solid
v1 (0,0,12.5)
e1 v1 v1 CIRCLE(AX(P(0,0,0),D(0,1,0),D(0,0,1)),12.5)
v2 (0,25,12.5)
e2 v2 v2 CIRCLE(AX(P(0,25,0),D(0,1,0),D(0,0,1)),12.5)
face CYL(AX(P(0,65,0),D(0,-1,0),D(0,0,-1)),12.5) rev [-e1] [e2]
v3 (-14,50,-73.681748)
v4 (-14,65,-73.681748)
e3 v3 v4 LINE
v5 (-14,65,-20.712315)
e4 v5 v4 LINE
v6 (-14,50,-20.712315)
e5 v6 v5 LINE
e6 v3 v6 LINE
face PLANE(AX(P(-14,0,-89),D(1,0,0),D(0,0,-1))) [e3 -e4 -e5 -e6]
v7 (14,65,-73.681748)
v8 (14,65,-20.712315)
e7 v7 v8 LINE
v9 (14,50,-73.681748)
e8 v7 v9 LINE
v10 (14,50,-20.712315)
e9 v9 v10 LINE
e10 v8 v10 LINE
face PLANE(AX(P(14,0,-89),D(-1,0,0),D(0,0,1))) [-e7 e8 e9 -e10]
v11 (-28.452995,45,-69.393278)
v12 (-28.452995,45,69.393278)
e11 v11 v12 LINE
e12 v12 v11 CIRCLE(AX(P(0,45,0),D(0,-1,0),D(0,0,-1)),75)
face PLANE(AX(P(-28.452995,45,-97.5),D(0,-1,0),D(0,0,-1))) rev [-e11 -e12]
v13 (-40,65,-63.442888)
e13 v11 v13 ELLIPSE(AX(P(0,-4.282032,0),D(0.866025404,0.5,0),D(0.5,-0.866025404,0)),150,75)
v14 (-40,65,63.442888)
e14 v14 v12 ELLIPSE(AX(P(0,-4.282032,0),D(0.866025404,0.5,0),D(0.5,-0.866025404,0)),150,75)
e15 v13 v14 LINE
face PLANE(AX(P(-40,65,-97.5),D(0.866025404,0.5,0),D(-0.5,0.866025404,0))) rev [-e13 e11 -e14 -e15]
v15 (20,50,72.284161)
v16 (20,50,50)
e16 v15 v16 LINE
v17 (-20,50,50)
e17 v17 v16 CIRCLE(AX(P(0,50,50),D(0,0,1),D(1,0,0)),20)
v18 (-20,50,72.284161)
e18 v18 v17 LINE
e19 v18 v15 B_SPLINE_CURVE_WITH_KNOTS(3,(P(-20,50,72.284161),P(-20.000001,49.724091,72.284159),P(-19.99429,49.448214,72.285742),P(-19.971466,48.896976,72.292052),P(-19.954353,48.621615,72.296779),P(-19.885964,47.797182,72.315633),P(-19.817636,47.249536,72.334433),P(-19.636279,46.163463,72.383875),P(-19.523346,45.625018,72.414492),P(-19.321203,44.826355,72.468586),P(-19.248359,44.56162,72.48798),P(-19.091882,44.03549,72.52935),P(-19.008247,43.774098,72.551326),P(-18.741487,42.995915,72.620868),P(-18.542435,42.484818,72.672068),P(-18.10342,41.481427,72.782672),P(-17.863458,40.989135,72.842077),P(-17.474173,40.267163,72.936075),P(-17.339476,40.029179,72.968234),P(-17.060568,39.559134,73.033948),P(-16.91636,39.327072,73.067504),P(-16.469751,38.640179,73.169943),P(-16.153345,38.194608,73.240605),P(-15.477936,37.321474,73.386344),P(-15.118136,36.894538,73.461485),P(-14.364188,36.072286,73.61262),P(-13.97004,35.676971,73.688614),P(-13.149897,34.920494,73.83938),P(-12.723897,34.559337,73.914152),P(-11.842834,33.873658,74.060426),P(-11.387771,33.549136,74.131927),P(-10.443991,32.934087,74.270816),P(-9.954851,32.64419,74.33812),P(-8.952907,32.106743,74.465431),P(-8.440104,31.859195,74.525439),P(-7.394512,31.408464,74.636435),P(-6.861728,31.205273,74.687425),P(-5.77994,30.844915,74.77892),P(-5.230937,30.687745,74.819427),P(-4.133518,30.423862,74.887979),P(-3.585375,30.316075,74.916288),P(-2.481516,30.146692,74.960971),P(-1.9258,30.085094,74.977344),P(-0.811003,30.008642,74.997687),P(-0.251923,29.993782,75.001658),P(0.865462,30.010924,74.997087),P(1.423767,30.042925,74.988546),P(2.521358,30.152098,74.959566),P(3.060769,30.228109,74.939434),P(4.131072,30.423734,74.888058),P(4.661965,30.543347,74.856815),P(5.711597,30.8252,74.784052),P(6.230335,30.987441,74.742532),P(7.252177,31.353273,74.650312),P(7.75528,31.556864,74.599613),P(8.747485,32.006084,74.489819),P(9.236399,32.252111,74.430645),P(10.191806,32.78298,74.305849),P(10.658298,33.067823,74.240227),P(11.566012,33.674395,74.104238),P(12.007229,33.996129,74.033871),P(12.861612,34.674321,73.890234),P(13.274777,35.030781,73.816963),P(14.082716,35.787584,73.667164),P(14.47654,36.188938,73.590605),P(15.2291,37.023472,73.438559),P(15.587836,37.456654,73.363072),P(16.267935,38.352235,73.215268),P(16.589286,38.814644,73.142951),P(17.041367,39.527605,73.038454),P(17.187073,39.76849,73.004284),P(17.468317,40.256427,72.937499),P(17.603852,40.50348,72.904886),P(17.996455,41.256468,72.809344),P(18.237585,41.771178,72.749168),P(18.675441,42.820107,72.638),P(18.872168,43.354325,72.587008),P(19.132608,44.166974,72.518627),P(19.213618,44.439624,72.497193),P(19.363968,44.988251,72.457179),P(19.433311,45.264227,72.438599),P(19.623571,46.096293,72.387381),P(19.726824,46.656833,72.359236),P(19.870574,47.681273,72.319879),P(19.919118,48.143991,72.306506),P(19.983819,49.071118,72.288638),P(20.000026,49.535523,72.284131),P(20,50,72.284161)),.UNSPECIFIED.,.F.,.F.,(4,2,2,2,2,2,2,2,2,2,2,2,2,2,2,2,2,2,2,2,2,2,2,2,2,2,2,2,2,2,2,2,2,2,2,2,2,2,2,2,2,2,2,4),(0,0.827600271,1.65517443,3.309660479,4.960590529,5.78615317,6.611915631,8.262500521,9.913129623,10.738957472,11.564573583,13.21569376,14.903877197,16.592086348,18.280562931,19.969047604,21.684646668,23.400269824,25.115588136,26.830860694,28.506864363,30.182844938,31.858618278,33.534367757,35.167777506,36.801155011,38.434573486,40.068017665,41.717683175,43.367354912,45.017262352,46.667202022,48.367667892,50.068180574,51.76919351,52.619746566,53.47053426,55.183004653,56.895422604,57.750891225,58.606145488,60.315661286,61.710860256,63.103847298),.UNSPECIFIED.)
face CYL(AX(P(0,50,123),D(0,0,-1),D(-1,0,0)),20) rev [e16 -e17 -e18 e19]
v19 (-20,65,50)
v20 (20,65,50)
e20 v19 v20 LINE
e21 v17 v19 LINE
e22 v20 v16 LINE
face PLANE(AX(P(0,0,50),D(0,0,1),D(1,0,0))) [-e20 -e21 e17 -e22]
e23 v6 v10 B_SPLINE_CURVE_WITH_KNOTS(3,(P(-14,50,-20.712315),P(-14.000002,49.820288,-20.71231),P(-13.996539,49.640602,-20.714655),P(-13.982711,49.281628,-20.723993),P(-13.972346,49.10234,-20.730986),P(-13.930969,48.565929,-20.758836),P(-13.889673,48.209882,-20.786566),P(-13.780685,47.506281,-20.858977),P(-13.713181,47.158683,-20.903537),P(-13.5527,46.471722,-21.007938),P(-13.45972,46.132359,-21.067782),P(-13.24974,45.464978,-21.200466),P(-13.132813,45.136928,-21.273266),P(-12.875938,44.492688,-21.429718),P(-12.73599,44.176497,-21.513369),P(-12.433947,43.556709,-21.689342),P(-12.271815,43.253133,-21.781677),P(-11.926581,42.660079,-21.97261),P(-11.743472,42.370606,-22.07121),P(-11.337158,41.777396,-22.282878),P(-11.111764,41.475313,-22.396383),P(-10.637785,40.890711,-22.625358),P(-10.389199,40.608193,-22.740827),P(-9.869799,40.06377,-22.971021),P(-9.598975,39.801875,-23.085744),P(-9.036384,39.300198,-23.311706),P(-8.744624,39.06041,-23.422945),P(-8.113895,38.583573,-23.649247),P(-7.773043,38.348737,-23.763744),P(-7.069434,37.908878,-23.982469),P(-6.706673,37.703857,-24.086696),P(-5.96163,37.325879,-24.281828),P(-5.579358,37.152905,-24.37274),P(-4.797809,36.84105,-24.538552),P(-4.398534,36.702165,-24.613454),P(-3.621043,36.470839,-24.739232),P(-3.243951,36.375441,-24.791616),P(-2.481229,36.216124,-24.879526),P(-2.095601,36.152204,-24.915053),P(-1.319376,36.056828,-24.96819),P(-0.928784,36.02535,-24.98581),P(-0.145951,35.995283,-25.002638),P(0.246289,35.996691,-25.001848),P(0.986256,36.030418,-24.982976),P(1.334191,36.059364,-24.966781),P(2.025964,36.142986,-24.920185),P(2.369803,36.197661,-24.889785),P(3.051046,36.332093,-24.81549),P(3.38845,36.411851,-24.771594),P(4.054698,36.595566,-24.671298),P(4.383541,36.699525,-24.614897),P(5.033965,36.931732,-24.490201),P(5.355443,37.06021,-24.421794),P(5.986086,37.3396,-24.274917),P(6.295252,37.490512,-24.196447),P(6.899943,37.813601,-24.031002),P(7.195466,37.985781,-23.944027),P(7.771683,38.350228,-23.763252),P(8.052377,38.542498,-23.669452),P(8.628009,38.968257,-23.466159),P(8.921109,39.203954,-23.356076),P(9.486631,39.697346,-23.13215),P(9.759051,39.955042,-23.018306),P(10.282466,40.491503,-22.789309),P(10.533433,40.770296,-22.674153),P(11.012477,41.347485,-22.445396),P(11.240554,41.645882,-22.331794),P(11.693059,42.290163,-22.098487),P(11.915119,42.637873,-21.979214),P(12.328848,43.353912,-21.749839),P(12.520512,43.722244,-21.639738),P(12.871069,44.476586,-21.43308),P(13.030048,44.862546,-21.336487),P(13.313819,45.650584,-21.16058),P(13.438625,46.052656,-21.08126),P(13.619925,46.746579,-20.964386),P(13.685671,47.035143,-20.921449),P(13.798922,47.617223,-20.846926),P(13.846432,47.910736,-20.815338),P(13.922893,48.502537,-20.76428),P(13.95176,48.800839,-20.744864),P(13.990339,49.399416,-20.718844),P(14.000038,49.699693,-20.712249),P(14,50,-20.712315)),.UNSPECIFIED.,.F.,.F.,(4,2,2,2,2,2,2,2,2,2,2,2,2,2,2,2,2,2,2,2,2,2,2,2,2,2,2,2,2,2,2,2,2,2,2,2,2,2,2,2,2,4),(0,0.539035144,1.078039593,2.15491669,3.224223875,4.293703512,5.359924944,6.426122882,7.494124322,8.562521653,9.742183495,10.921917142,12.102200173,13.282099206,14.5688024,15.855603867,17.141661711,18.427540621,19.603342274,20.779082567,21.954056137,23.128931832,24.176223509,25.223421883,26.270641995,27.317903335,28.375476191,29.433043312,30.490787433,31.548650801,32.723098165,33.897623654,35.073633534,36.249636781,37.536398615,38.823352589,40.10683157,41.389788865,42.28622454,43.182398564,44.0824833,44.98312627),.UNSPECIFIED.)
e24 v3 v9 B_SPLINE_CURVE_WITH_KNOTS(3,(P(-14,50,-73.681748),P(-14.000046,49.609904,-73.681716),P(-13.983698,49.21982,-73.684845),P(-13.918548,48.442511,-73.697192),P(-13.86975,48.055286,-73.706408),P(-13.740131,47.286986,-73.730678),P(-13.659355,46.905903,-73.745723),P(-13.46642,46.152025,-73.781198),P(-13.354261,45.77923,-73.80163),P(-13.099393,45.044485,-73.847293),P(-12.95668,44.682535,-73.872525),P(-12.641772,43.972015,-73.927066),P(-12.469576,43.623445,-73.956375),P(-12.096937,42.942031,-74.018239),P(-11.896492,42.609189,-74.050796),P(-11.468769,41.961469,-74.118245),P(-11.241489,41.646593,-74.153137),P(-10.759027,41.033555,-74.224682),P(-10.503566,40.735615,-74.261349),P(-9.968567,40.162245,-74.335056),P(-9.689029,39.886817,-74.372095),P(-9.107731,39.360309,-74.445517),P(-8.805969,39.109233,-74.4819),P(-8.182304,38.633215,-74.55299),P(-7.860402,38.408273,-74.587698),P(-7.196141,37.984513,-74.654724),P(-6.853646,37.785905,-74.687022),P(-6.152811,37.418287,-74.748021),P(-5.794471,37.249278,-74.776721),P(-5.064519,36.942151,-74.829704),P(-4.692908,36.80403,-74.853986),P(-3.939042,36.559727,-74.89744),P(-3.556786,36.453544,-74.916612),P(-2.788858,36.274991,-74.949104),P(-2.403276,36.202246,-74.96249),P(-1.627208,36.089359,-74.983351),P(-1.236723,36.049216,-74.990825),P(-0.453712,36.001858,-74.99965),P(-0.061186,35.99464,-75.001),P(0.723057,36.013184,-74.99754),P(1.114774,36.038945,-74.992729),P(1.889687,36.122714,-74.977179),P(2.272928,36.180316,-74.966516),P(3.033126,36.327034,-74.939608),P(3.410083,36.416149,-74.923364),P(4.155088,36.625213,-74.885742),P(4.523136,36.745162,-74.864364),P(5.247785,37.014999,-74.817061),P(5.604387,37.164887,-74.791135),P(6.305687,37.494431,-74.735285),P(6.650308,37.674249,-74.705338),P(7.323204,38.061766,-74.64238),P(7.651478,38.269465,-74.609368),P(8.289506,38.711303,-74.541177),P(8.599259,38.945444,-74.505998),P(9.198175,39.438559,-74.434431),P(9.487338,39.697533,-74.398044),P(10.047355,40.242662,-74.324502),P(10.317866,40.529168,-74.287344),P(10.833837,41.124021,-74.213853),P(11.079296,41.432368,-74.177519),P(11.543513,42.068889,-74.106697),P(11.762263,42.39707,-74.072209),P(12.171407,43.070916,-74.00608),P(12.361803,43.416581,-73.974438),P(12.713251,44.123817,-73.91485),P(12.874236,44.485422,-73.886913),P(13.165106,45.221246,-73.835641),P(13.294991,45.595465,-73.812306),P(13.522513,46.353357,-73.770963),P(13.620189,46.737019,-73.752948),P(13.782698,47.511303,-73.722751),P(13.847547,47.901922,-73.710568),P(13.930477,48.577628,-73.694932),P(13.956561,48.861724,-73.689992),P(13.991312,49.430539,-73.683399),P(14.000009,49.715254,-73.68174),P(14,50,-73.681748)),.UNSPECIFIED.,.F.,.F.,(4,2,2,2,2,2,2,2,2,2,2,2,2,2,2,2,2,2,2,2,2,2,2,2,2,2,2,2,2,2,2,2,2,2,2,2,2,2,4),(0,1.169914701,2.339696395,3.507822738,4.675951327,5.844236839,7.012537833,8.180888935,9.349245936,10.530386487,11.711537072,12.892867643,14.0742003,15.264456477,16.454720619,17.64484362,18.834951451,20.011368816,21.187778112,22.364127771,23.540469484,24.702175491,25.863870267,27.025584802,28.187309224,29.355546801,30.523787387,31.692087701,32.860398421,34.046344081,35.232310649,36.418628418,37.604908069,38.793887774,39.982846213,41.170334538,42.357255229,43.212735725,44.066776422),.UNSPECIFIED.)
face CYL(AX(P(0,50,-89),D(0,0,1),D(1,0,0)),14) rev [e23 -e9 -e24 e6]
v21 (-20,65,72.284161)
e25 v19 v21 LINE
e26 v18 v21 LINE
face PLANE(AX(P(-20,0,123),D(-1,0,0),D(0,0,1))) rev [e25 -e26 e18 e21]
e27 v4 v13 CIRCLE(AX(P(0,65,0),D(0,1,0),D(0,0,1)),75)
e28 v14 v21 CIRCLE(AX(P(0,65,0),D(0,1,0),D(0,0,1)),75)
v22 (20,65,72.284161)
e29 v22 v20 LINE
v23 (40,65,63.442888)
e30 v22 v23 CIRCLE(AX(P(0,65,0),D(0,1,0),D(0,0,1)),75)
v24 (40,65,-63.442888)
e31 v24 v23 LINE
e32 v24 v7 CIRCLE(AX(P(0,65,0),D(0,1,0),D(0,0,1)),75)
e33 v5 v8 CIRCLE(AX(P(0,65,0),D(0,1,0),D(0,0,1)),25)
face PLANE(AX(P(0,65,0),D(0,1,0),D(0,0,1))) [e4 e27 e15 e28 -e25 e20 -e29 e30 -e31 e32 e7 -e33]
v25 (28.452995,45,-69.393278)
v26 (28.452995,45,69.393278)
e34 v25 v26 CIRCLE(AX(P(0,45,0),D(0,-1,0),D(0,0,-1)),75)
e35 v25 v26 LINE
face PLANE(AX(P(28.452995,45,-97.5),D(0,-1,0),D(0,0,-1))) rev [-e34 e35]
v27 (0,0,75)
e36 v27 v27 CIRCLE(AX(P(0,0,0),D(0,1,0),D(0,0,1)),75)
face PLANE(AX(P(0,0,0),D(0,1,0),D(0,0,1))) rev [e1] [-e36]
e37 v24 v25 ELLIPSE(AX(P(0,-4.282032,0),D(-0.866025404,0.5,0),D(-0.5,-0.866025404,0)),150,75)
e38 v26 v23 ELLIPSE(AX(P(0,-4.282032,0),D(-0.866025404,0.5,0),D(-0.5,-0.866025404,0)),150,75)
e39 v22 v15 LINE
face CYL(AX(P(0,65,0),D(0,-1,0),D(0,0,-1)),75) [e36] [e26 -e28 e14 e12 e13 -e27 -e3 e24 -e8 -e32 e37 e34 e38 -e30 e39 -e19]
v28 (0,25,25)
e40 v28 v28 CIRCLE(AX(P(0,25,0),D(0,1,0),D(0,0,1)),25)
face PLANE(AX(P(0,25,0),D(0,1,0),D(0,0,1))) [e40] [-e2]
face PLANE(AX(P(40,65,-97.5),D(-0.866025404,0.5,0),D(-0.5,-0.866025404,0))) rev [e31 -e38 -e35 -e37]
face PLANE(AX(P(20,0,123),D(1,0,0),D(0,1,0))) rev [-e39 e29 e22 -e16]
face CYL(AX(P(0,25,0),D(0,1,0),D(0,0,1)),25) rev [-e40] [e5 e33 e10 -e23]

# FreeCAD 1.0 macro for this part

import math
import FreeCAD as App
import Part
import Sketcher
from FreeCAD import Vector
Q = App.Units.Quantity

doc = App.newDocument("Part")
body = doc.addObject("PartDesign::Body", "Body")

# Sketch on XZ plane
sketch1 = body.newObject("Sketcher::SketchObject", "Sketch")
sketch1.AttachmentSupport = (doc.getObject("XZ_Plane"), [""])
sketch1.MapMode = "FlatFace"
sketch1.addGeometry([
    Part.Circle(Vector(0, 0, 0), Vector(0, 0, 1), 75),
    Part.Circle(Vector(0, 0, 0), Vector(0, 0, 1), 12),
], False)
sketch1.addConstraint([
    Sketcher.Constraint("Coincident", 0, 3, -1, 1),
    Sketcher.Constraint("Coincident", 1, 3, -1, 1),
    Sketcher.Constraint("Diameter", 0, 150.0),
    Sketcher.Constraint("Diameter", 1, 25.0),
])
pad1 = body.newObject("PartDesign::Pad", "Pad")
pad1.Profile = sketch1
pad1.Length = 65
pad1.Reversed = True

# Sketch on XY plane
sketch2 = body.newObject("Sketcher::SketchObject", "Sketch001")
sketch2.AttachmentSupport = (doc.getObject("XY_Plane"), [""])
sketch2.MapMode = "FlatFace"
sketch2.addGeometry([
    Part.LineSegment(Vector(-14, 78, 0), Vector(-14, 50, 0)),
    Part.ArcOfCircle(Part.Circle(Vector(0, 50, 0), Vector(0, 0, 1), 14), math.radians(180), math.radians(360)),
    Part.LineSegment(Vector(14, 50, 0), Vector(14, 78, 0)),
    Part.LineSegment(Vector(14, 78, 0), Vector(-14, 78, 0)),
], False)
sketch2.addConstraint([
    Sketcher.Constraint("Tangent", 0, 2, 1, 1),
    Sketcher.Constraint("Tangent", 1, 2, 2, 1),
    Sketcher.Constraint("Coincident", 2, 2, 3, 1),
    Sketcher.Constraint("Coincident", 3, 2, 0, 1),
    Sketcher.Constraint("Vertical", 0),
    Sketcher.Constraint("Vertical", 2),
    Sketcher.Constraint("Horizontal", 3),
    Sketcher.Constraint("PointOnObject", 1, 3, -2),
    Sketcher.Constraint("Radius", 1, 14.0),
    Sketcher.Constraint("DistanceY", -1, 1, 1, 3, 50.0),
    Sketcher.Constraint("DistanceY", 0, 2, 0, 1, 27.852423),
])
pocket1 = body.newObject("PartDesign::Pocket", "Pocket")
pocket1.Profile = sketch2
pocket1.Length = 89

# Sketch on XZ plane
sketch3 = body.newObject("Sketcher::SketchObject", "Sketch002")
sketch3.AttachmentSupport = (doc.getObject("XZ_Plane"), [""])
sketch3.MapMode = "FlatFace"
sketch3.AttachmentOffset = App.Placement(Vector(0, 0, -65), App.Rotation())
sketch3.addGeometry(Part.Circle(Vector(0, 0, 0), Vector(0, 0, 1), 25), False)
sketch3.addConstraint([
    Sketcher.Constraint("Coincident", 0, 3, -1, 1),
    Sketcher.Constraint("Diameter", 0, 50.0),
])
pocket2 = body.newObject("PartDesign::Pocket", "Pocket001")
pocket2.Profile = sketch3
pocket2.Length = 40
pocket2.Reversed = True

# Sketch on XY plane
sketch4 = body.newObject("Sketcher::SketchObject", "Sketch003")
sketch4.AttachmentSupport = (doc.getObject("XY_Plane"), [""])
sketch4.MapMode = "FlatFace"
sketch4.addGeometry([
    Part.LineSegment(Vector(-40, 65, 0), Vector(-75, 65, 0)),  # 0
    Part.LineSegment(Vector(-75, 65, 0), Vector(-75, 45, 0)),  # 1
    Part.LineSegment(Vector(-75, 45, 0), Vector(-28, 45, 0)),  # 2
    Part.LineSegment(Vector(-28, 45, 0), Vector(-40, 65, 0)),  # 3
    Part.LineSegment(Vector(75, 65, 0), Vector(40, 65, 0)),  # 4
    Part.LineSegment(Vector(40, 65, 0), Vector(28, 45, 0)),  # 5
    Part.LineSegment(Vector(28, 45, 0), Vector(75, 45, 0)),  # 6
    Part.LineSegment(Vector(75, 45, 0), Vector(75, 65, 0)),  # 7
], False)
sketch4.addConstraint([
    Sketcher.Constraint("Coincident", 0, 2, 1, 1),
    Sketcher.Constraint("Coincident", 1, 2, 2, 1),
    Sketcher.Constraint("Coincident", 2, 2, 3, 1),
    Sketcher.Constraint("Coincident", 3, 2, 0, 1),
    Sketcher.Constraint("Coincident", 4, 2, 5, 1),
    Sketcher.Constraint("Coincident", 5, 2, 6, 1),
    Sketcher.Constraint("Coincident", 6, 2, 7, 1),
    Sketcher.Constraint("Coincident", 7, 2, 4, 1),
    Sketcher.Constraint("Horizontal", 0),
    Sketcher.Constraint("Vertical", 1),
    Sketcher.Constraint("Horizontal", 2),
    Sketcher.Constraint("Horizontal", 4),
    Sketcher.Constraint("Horizontal", 6),
    Sketcher.Constraint("Vertical", 7),
    Sketcher.Constraint("Symmetric", 3, 2, 4, 2, -2),
    Sketcher.Constraint("Symmetric", 2, 2, 5, 2, -2),
    Sketcher.Constraint("Equal", 0, 4),
    Sketcher.Constraint("DistanceX", 0, 2, 0, 1, 35.0),
    Sketcher.Constraint("DistanceY", 1, 2, 1, 1, 20.0),
    Sketcher.Constraint("Angle", 3, Q("120 deg")),
    Sketcher.Constraint("DistanceX", 0, 2, -1, 1, 75.0),
    Sketcher.Constraint("DistanceY", -1, 1, 0, 2, 65.0),
])
pocket3 = body.newObject("PartDesign::Pocket", "Pocket002")
pocket3.Profile = sketch4
pocket3.Length = 195
pocket3.Midplane = True

# Sketch on XY plane
sketch5 = body.newObject("Sketcher::SketchObject", "Sketch004")
sketch5.AttachmentSupport = (doc.getObject("XY_Plane"), [""])
sketch5.MapMode = "FlatFace"
sketch5.AttachmentOffset = App.Placement(Vector(0, 0, 50), App.Rotation())
sketch5.addGeometry([
    Part.ArcOfCircle(Part.Circle(Vector(0, 50, 0), Vector(0, 0, 1), 20), math.radians(180), math.radians(360)),
    Part.LineSegment(Vector(20, 50, 0), Vector(20, 82, 0)),
    Part.LineSegment(Vector(20, 82, 0), Vector(-20, 82, 0)),
    Part.LineSegment(Vector(-20, 82, 0), Vector(-20, 50, 0)),
], False)
sketch5.addConstraint([
    Sketcher.Constraint("Tangent", 0, 2, 1, 1),
    Sketcher.Constraint("Coincident", 1, 2, 2, 1),
    Sketcher.Constraint("Coincident", 2, 2, 3, 1),
    Sketcher.Constraint("Tangent", 3, 2, 0, 1),
    Sketcher.Constraint("Vertical", 1),
    Sketcher.Constraint("Horizontal", 2),
    Sketcher.Constraint("Vertical", 3),
    Sketcher.Constraint("PointOnObject", 0, 3, -2),
    Sketcher.Constraint("Radius", 0, 20.0),
    Sketcher.Constraint("DistanceY", -1, 1, 0, 3, 50.0),
    Sketcher.Constraint("DistanceY", 1, 1, 1, 2, 32.212313),
])
pocket4 = body.newObject("PartDesign::Pocket", "Pocket003")
pocket4.Profile = sketch5
pocket4.Length = 73
pocket4.Reversed = True

doc.recompute()
